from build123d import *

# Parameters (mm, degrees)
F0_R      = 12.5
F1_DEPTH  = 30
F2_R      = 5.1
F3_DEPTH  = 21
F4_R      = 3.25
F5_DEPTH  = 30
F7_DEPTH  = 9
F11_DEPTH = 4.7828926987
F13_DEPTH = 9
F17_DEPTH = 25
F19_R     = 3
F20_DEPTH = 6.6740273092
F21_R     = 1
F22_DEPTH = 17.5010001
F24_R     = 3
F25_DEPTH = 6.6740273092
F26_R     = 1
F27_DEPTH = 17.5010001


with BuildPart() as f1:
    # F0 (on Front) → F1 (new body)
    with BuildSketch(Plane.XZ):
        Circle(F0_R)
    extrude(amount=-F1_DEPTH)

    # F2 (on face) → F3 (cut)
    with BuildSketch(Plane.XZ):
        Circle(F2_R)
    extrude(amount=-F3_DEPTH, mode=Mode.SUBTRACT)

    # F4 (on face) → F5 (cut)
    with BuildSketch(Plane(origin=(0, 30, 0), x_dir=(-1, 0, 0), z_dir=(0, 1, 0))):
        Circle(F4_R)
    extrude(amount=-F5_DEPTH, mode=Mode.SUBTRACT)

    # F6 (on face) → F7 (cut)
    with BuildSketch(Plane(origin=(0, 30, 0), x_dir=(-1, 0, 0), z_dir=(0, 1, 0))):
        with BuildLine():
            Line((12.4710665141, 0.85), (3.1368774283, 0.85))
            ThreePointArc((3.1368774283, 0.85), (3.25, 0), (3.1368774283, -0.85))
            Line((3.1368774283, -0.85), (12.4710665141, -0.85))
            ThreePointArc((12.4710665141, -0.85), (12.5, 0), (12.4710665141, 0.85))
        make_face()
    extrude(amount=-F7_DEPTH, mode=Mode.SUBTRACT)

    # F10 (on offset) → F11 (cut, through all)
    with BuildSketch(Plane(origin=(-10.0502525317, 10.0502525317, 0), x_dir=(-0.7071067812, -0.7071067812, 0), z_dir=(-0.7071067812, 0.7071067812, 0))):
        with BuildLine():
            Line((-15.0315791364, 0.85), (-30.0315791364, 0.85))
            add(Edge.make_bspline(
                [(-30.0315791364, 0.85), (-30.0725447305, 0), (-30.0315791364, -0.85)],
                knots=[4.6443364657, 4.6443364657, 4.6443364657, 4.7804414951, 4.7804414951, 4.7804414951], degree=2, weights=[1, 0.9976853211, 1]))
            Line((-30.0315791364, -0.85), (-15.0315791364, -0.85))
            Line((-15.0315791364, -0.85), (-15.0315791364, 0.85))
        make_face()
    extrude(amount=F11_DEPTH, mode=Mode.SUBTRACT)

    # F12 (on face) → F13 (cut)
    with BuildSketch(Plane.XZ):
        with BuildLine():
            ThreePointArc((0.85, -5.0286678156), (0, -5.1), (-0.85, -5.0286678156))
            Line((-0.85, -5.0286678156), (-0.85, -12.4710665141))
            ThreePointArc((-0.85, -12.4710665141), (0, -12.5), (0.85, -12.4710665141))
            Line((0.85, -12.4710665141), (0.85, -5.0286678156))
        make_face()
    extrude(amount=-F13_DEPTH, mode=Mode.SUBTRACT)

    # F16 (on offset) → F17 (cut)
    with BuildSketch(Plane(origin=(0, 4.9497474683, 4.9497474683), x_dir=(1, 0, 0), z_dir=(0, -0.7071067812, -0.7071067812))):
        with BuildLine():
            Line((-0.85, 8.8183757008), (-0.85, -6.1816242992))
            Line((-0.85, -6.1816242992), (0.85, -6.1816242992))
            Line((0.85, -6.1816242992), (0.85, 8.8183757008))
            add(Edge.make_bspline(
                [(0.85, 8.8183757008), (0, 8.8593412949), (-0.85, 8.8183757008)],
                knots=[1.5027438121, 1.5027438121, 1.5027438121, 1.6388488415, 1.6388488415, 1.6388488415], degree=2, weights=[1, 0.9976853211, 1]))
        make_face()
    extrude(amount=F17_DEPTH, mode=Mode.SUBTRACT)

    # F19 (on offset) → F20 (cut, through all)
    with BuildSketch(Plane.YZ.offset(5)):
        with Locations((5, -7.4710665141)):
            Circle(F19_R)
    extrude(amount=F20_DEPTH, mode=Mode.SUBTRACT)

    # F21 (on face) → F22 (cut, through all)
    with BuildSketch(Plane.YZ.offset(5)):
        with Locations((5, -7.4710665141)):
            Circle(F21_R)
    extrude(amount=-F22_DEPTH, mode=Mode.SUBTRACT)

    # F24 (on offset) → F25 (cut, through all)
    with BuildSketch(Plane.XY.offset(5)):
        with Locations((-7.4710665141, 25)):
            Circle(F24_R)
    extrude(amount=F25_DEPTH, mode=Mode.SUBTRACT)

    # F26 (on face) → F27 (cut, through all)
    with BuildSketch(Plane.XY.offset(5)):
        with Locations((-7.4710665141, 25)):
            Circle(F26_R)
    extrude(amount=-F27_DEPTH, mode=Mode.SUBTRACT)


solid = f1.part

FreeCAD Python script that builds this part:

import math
import FreeCAD as App
import Part
import Sketcher

V = App.Vector
Q = App.Units.Quantity

doc = App.newDocument("Part")
body = doc.addObject("PartDesign::Body", "Body")

# Sketch on XZ plane
sketch1 = body.newObject("Sketcher::SketchObject", "Sketch")
sketch1.AttachmentSupport = (doc.getObject("XZ_Plane"), [""])
sketch1.MapMode = "FlatFace"
sketch1.addGeometry(Part.Circle(V(0, 0, 0), V(0, 0, 1), 12), False)
sketch1.addConstraint(Sketcher.Constraint("Coincident", 0, 3, -1, 1))
sketch1.addConstraint(Sketcher.Constraint("Diameter", 0, Q("25 mm")))
pad1 = body.newObject("PartDesign::Pad", "Pad")
pad1.Profile = sketch1
pad1.Length = 30
pad1.Reversed = True

# Sketch on XZ plane
sketch2 = body.newObject("Sketcher::SketchObject", "Sketch001")
sketch2.AttachmentSupport = (doc.getObject("XZ_Plane"), [""])
sketch2.MapMode = "FlatFace"
sketch2.addGeometry(Part.Circle(V(0, 0, 0), V(0, 0, 1), 5), False)
sketch2.addConstraint(Sketcher.Constraint("Coincident", 0, 3, -1, 1))
sketch2.addConstraint(Sketcher.Constraint("Diameter", 0, Q("10.2 mm")))
pocket1 = body.newObject("PartDesign::Pocket", "Pocket")
pocket1.Profile = sketch2
pocket1.Length = 21

# Sketch on XZ plane
sketch3 = body.newObject("Sketcher::SketchObject", "Sketch002")
sketch3.AttachmentSupport = (doc.getObject("XZ_Plane"), [""])
sketch3.MapMode = "FlatFace"
sketch3.AttachmentOffset = App.Placement(V(0, 0, -30), App.Rotation())
sketch3.addGeometry(Part.Circle(V(0, 0, 0), V(0, 0, 1), 3.2), False)
sketch3.addConstraint(Sketcher.Constraint("Coincident", 0, 3, -1, 1))
sketch3.addConstraint(Sketcher.Constraint("Diameter", 0, Q("6.5 mm")))
pocket2 = body.newObject("PartDesign::Pocket", "Pocket001")
pocket2.Profile = sketch3
pocket2.Length = 30
pocket2.Reversed = True

# Sketch on XZ plane
sketch4 = body.newObject("Sketcher::SketchObject", "Sketch003")
sketch4.AttachmentSupport = (doc.getObject("XZ_Plane"), [""])
sketch4.MapMode = "FlatFace"
sketch4.AttachmentOffset = App.Placement(V(0, 0, -30), App.Rotation())
sketch4.addGeometry(Part.LineSegment(V(-12.5, 0.8, 0), V(-3.1, 0.8, 0)), False)
sketch4.addGeometry(Part.ArcOfCircle(Part.Circle(V(0, 0, 0), V(0, 0, 1), 3.3), math.radians(165), math.radians(195)), False)
sketch4.addGeometry(Part.LineSegment(V(-3.1, -0.8, 0), V(-12.5, -0.8, 0)), False)
sketch4.addGeometry(Part.ArcOfCircle(Part.Circle(V(0, 0, 0), V(0, 0, 1), 12.5), math.radians(176.1), math.radians(183.9)), False)
sketch4.addConstraint(Sketcher.Constraint("Coincident", 0, 2, 1, 1))
sketch4.addConstraint(Sketcher.Constraint("Coincident", 1, 2, 2, 1))
sketch4.addConstraint(Sketcher.Constraint("Coincident", 2, 2, 3, 2))
sketch4.addConstraint(Sketcher.Constraint("Coincident", 3, 1, 0, 1))
sketch4.addConstraint(Sketcher.Constraint("Horizontal", 0))
sketch4.addConstraint(Sketcher.Constraint("Horizontal", 2))
sketch4.addConstraint(Sketcher.Constraint("Coincident", 1, 3, -1, 1))
sketch4.addConstraint(Sketcher.Constraint("Coincident", 3, 3, -1, 1))
sketch4.addConstraint(Sketcher.Constraint("Vertical", 0, 2, 1, 2))
sketch4.addConstraint(Sketcher.Constraint("Radius", 3, Q("12.5 mm")))
sketch4.addConstraint(Sketcher.Constraint("Radius", 1, Q("3.25 mm")))
sketch4.addConstraint(Sketcher.Constraint("DistanceY", 1, 2, 0, 2, Q("1.7 mm")))
pocket3 = body.newObject("PartDesign::Pocket", "Pocket002")
pocket3.Profile = sketch4
pocket3.Length = 9
pocket3.Reversed = True

# Sketch on an angled plane
sketch5 = body.newObject("Sketcher::SketchObject", "Sketch004")
sketch5.Placement = App.Placement(V(-10.050253, 10.050253, 0), App.Rotation(V(-0.707106781, -0.707106781, 0), V(0, 0, 0.999999999), V(-0.707106781, 0.707106781, 0), "ZXY"))
sketch5.addGeometry(Part.LineSegment(V(-15.031579, 0.85, 0), V(-30.031579, 0.85, 0)), False)
sketch5.addGeometry(Part.BSplineCurve([V(-30.031579, 0.85, 0), V(-30.072545, 0, 0), V(-30.031579, -0.85, 0)], [3, 3], [4.644336466, 4.780441495], False, 2, [1, 0.997685321, 1], False), False)
sketch5.addGeometry(Part.LineSegment(V(-30.031579, -0.85, 0), V(-15.031579, -0.85, 0)), False)
sketch5.addGeometry(Part.LineSegment(V(-15.031579, -0.85, 0), V(-15.031579, 0.85, 0)), False)
sketch5.addConstraint(Sketcher.Constraint("Block", 1))
sketch5.addConstraint(Sketcher.Constraint("Coincident", 0, 2, 1, 1))
sketch5.addConstraint(Sketcher.Constraint("Coincident", 1, 2, 2, 1))
sketch5.addConstraint(Sketcher.Constraint("Coincident", 2, 2, 3, 1))
sketch5.addConstraint(Sketcher.Constraint("Coincident", 3, 2, 0, 1))
sketch5.addConstraint(Sketcher.Constraint("Horizontal", 0))
sketch5.addConstraint(Sketcher.Constraint("Horizontal", 2))
sketch5.addConstraint(Sketcher.Constraint("Vertical", 3))
sketch5.addConstraint(Sketcher.Constraint("DistanceX", 0, 2, 0, 1, Q("15 mm")))
pocket4 = body.newObject("PartDesign::Pocket", "Pocket003")
pocket4.Profile = sketch5
pocket4.Type = "ThroughAll"
pocket4.Reversed = True

# Sketch on XZ plane
sketch6 = body.newObject("Sketcher::SketchObject", "Sketch005")
sketch6.AttachmentSupport = (doc.getObject("XZ_Plane"), [""])
sketch6.MapMode = "FlatFace"
sketch6.addGeometry(Part.ArcOfCircle(Part.Circle(V(0, 0, 0), V(0, 0, 1), 5.1), math.radians(-99.59), math.radians(-80.41)), False)
sketch6.addGeometry(Part.LineSegment(V(-0.8, -5, 0), V(-0.8, -12.5, 0)), False)
sketch6.addGeometry(Part.ArcOfCircle(Part.Circle(V(0, 0, 0), V(0, 0, 1), 12.5), math.radians(-93.9), math.radians(-86.1)), False)
sketch6.addGeometry(Part.LineSegment(V(0.8, -12.5, 0), V(0.8, -5, 0)), False)
sketch6.addConstraint(Sketcher.Constraint("Coincident", 0, 1, 1, 1))
sketch6.addConstraint(Sketcher.Constraint("Coincident", 1, 2, 2, 1))
sketch6.addConstraint(Sketcher.Constraint("Coincident", 2, 2, 3, 1))
sketch6.addConstraint(Sketcher.Constraint("Coincident", 3, 2, 0, 2))
sketch6.addConstraint(Sketcher.Constraint("Vertical", 1))
sketch6.addConstraint(Sketcher.Constraint("Vertical", 3))
sketch6.addConstraint(Sketcher.Constraint("Coincident", 0, 3, -1, 1))
sketch6.addConstraint(Sketcher.Constraint("Coincident", 2, 3, -1, 1))
sketch6.addConstraint(Sketcher.Constraint("Horizontal", 1, 2, 2, 2))
sketch6.addConstraint(Sketcher.Constraint("Radius", 0, Q("5.1 mm")))
sketch6.addConstraint(Sketcher.Constraint("Radius", 2, Q("12.5 mm")))
sketch6.addConstraint(Sketcher.Constraint("DistanceX", 1, 2, 2, 2, Q("1.7 mm")))
pocket5 = body.newObject("PartDesign::Pocket", "Pocket004")
pocket5.Profile = sketch6
pocket5.Length = 9

# Sketch on an angled plane
sketch7 = body.newObject("Sketcher::SketchObject", "Sketch006")
sketch7.Placement = App.Placement(V(0, 4.949747, 4.949747), App.Rotation(V(1, 0, 0), V(0, -0.707106781, 0.707106781), V(0, -0.707106781, -0.707106781), "ZXY"))
sketch7.addGeometry(Part.LineSegment(V(-0.85, 8.818376, 0), V(-0.85, -6.181624, 0)), False)
sketch7.addGeometry(Part.LineSegment(V(-0.85, -6.181624, 0), V(0.85, -6.181624, 0)), False)
sketch7.addGeometry(Part.LineSegment(V(0.85, -6.181624, 0), V(0.85, 8.818376, 0)), False)
sketch7.addGeometry(Part.BSplineCurve([V(0.85, 8.818376, 0), V(0, 8.859341, 0), V(-0.85, 8.818376, 0)], [3, 3], [1.502743812, 1.638848841], False, 2, [1, 0.997685321, 1], False), False)
sketch7.addConstraint(Sketcher.Constraint("Block", 3))
sketch7.addConstraint(Sketcher.Constraint("Coincident", 0, 2, 1, 1))
sketch7.addConstraint(Sketcher.Constraint("Coincident", 1, 2, 2, 1))
sketch7.addConstraint(Sketcher.Constraint("Coincident", 2, 2, 3, 1))
sketch7.addConstraint(Sketcher.Constraint("Coincident", 3, 2, 0, 1))
sketch7.addConstraint(Sketcher.Constraint("Vertical", 0))
sketch7.addConstraint(Sketcher.Constraint("Horizontal", 1))
sketch7.addConstraint(Sketcher.Constraint("Vertical", 2))
sketch7.addConstraint(Sketcher.Constraint("DistanceY", 0, 2, 0, 1, Q("15 mm")))
pocket6 = body.newObject("PartDesign::Pocket", "Pocket005")
pocket6.Profile = sketch7
pocket6.Length = 25
pocket6.Reversed = True

# Sketch on YZ plane
sketch8 = body.newObject("Sketcher::SketchObject", "Sketch007")
sketch8.AttachmentSupport = (doc.getObject("YZ_Plane"), [""])
sketch8.MapMode = "FlatFace"
sketch8.AttachmentOffset = App.Placement(V(0, 0, 5), App.Rotation())
sketch8.addGeometry(Part.Circle(V(5, -7.5, 0), V(0, 0, 1), 3), False)
sketch8.addConstraint(Sketcher.Constraint("Diameter", 0, Q("6 mm")))
sketch8.addConstraint(Sketcher.Constraint("DistanceX", -1, 1, 0, 3, Q("5 mm")))
sketch8.addConstraint(Sketcher.Constraint("DistanceY", 0, 3, -1, 1, Q("7.471067 mm")))
pocket7 = body.newObject("PartDesign::Pocket", "Pocket006")
pocket7.Profile = sketch8
pocket7.Type = "ThroughAll"
pocket7.Reversed = True

# Sketch on YZ plane
sketch9 = body.newObject("Sketcher::SketchObject", "Sketch008")
sketch9.AttachmentSupport = (doc.getObject("YZ_Plane"), [""])
sketch9.MapMode = "FlatFace"
sketch9.AttachmentOffset = App.Placement(V(0, 0, 5), App.Rotation())
sketch9.addGeometry(Part.Circle(V(5, -7.5, 0), V(0, 0, 1), 1), False)
sketch9.addConstraint(Sketcher.Constraint("Diameter", 0, Q("2 mm")))
sketch9.addConstraint(Sketcher.Constraint("DistanceX", -1, 1, 0, 3, Q("5 mm")))
sketch9.addConstraint(Sketcher.Constraint("DistanceY", 0, 3, -1, 1, Q("7.471067 mm")))
pocket8 = body.newObject("PartDesign::Pocket", "Pocket007")
pocket8.Profile = sketch9
pocket8.Type = "ThroughAll"

# Sketch on XY plane
sketch10 = body.newObject("Sketcher::SketchObject", "Sketch009")
sketch10.AttachmentSupport = (doc.getObject("XY_Plane"), [""])
sketch10.MapMode = "FlatFace"
sketch10.AttachmentOffset = App.Placement(V(0, 0, 5), App.Rotation())
sketch10.addGeometry(Part.Circle(V(-7.5, 25, 0), V(0, 0, 1), 3), False)
sketch10.addConstraint(Sketcher.Constraint("Diameter", 0, Q("6 mm")))
sketch10.addConstraint(Sketcher.Constraint("DistanceY", -1, 1, 0, 3, Q("25 mm")))
sketch10.addConstraint(Sketcher.Constraint("DistanceX", 0, 3, -1, 1, Q("7.471067 mm")))
pocket9 = body.newObject("PartDesign::Pocket", "Pocket008")
pocket9.Profile = sketch10
pocket9.Type = "ThroughAll"
pocket9.Reversed = True

# Sketch on XY plane
sketch11 = body.newObject("Sketcher::SketchObject", "Sketch010")
sketch11.AttachmentSupport = (doc.getObject("XY_Plane"), [""])
sketch11.MapMode = "FlatFace"
sketch11.AttachmentOffset = App.Placement(V(0, 0, 5), App.Rotation())
sketch11.addGeometry(Part.Circle(V(-7.5, 25, 0), V(0, 0, 1), 1), False)
sketch11.addConstraint(Sketcher.Constraint("Diameter", 0, Q("2 mm")))
sketch11.addConstraint(Sketcher.Constraint("DistanceY", -1, 1, 0, 3, Q("25 mm")))
sketch11.addConstraint(Sketcher.Constraint("DistanceX", 0, 3, -1, 1, Q("7.471067 mm")))
pocket10 = body.newObject("PartDesign::Pocket", "Pocket009")
pocket10.Profile = sketch11
pocket10.Type = "ThroughAll"

doc.recompute()
